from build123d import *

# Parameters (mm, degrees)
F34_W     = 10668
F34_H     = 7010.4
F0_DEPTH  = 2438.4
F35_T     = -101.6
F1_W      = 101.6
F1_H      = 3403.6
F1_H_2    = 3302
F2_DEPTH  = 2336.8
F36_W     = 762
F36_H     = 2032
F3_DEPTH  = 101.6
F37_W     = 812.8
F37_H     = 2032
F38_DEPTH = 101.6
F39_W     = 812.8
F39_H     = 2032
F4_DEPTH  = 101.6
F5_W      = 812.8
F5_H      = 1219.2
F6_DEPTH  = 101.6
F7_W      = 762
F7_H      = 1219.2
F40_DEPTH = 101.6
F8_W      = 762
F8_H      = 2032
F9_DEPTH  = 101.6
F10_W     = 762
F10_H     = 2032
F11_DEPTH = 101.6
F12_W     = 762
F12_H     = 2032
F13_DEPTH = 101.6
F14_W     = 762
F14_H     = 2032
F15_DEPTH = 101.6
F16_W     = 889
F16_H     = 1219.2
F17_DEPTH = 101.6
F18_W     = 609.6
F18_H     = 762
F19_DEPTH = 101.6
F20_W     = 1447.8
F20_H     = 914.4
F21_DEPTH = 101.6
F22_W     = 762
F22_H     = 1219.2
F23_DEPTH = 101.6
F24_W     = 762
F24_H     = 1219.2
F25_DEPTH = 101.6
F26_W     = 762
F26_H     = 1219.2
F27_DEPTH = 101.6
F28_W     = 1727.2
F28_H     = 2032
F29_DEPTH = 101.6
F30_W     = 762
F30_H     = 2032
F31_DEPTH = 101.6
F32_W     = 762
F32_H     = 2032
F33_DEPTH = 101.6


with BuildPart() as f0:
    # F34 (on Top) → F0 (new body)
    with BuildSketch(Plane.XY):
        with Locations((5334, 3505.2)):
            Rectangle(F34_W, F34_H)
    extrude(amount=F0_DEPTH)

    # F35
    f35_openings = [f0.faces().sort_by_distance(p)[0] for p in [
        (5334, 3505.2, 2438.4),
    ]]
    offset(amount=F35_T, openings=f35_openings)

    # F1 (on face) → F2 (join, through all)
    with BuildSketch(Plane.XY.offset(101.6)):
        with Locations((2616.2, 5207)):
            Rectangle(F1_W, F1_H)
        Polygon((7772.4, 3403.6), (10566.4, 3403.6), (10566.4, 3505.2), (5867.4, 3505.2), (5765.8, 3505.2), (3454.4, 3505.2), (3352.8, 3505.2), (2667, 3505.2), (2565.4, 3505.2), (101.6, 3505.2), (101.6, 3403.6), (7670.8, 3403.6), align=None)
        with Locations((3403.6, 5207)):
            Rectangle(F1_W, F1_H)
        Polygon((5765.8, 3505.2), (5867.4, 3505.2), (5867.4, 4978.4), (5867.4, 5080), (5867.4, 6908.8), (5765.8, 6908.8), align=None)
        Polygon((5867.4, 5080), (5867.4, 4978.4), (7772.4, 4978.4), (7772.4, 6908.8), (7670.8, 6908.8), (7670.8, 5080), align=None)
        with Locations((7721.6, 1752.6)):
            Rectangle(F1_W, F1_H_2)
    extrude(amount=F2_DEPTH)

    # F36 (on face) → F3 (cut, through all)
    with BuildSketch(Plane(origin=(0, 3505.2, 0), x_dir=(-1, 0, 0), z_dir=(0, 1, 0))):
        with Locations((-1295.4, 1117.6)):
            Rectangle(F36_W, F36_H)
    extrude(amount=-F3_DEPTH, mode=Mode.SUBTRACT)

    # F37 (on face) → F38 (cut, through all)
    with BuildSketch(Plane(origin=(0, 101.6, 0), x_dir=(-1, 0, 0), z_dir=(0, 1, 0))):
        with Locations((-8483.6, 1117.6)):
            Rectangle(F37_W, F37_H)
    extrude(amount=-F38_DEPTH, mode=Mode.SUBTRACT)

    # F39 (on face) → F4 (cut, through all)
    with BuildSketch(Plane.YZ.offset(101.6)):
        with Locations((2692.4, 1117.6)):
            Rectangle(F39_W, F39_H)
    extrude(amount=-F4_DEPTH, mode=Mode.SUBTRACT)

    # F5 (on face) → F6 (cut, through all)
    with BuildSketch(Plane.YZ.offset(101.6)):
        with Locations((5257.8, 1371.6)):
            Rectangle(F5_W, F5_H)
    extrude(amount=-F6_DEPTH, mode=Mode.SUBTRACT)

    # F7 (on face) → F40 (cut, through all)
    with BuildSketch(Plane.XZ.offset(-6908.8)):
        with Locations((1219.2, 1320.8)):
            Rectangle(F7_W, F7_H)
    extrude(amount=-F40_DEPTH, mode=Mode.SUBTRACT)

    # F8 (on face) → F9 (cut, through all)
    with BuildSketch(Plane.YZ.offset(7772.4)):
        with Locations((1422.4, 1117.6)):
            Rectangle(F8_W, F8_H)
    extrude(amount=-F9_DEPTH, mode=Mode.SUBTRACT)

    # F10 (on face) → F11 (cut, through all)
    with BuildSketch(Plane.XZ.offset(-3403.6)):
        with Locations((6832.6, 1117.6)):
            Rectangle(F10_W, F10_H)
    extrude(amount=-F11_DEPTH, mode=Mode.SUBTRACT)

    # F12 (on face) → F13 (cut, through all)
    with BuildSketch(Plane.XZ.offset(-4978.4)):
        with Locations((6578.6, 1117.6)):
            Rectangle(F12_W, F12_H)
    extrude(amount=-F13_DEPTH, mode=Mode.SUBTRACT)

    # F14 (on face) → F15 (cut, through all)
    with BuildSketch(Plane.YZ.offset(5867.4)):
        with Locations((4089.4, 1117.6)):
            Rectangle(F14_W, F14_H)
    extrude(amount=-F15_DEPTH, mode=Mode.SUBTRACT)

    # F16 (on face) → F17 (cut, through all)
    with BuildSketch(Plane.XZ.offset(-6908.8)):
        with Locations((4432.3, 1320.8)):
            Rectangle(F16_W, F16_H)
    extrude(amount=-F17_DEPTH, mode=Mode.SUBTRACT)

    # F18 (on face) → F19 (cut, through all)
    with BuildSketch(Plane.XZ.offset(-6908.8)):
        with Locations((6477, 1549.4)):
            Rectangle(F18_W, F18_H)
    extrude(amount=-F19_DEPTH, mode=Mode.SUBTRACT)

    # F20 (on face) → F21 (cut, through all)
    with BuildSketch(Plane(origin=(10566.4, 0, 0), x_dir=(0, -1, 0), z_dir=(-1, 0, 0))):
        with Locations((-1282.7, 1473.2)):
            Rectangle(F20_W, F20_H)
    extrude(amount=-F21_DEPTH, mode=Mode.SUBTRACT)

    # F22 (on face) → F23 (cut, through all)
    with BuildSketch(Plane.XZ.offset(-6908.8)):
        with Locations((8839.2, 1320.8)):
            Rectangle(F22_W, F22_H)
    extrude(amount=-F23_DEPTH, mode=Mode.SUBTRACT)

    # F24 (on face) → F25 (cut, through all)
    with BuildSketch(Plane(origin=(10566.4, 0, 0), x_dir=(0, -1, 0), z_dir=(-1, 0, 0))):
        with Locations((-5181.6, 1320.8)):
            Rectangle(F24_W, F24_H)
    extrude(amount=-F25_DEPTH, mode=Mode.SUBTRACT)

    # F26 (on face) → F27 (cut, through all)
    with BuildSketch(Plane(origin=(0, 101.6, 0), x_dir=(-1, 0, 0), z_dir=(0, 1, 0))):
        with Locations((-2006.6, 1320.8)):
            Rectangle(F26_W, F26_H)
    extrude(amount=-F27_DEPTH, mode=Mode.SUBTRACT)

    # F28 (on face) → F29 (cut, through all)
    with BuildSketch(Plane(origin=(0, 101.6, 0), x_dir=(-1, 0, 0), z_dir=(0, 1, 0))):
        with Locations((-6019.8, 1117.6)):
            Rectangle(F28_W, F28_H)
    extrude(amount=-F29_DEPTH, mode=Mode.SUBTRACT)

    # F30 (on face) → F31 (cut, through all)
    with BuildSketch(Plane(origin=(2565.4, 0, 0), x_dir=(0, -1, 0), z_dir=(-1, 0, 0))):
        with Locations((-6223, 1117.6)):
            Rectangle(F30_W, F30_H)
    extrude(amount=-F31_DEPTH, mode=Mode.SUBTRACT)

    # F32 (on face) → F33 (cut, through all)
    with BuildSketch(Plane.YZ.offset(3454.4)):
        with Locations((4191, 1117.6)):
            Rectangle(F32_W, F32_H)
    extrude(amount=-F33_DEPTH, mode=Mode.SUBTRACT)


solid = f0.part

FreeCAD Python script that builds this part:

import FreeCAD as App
import Part
import Sketcher

V = App.Vector
Q = App.Units.Quantity


def faces_at(feature, points):
    """Names of the faces that lie closest to the given points."""
    faces = feature.Shape.Faces
    near = lambda p: min(range(len(faces)), key=lambda i: faces[i].distToShape(Part.Vertex(*p))[0])
    return sorted({f"Face{near(p) + 1}" for p in points})

doc = App.newDocument("Part")
body = doc.addObject("PartDesign::Body", "Body")

# Sketch on XY plane
sketch1 = body.newObject("Sketcher::SketchObject", "Sketch")
sketch1.AttachmentSupport = (doc.getObject("XY_Plane"), [""])
sketch1.MapMode = "FlatFace"
sketch1.addGeometry([
    Part.LineSegment(V(0, 7010, 0), V(0, 0, 0)),
    Part.LineSegment(V(0, 0, 0), V(10668, 0, 0)),
    Part.LineSegment(V(10668, 0, 0), V(10668, 7010, 0)),
    Part.LineSegment(V(10668, 7010, 0), V(0, 7010, 0)),
], False)
sketch1.addConstraint([
    Sketcher.Constraint("Coincident", 0, 2, 1, 1),
    Sketcher.Constraint("Coincident", 1, 2, 2, 1),
    Sketcher.Constraint("Coincident", 2, 2, 3, 1),
    Sketcher.Constraint("Coincident", 3, 2, 0, 1),
    Sketcher.Constraint("Vertical", 0),
    Sketcher.Constraint("Horizontal", 1),
    Sketcher.Constraint("Vertical", 2),
    Sketcher.Constraint("Horizontal", 3),
    Sketcher.Constraint("Coincident", 0, 2, -1, 1),
    Sketcher.Constraint("DistanceX", 1, 1, 1, 2, Q("420 in")),
    Sketcher.Constraint("DistanceY", 0, 2, 0, 1, Q("276 in")),
])
pad1 = body.newObject("PartDesign::Pad", "Pad")
pad1.Profile = sketch1
pad1.Length = Q("96 in")
doc.recompute()

thickness = body.newObject("PartDesign::Thickness", "Thickness")
thickness.Base = (pad1, faces_at(pad1, [(5334, 3505.2, 2438.4)]))
thickness.Value = Q("4 in")
thickness.Reversed = True
thickness.Join = "Arc"

# Sketch on XY plane
sketch2 = body.newObject("Sketcher::SketchObject", "Sketch001")
sketch2.AttachmentSupport = (doc.getObject("XY_Plane"), [""])
sketch2.MapMode = "FlatFace"
sketch2.AttachmentOffset = App.Placement(V(0, 0, 4 * 25.4), App.Rotation())
sketch2.addGeometry([
    Part.LineSegment(V(2565, 6909, 0), V(2565, 3505, 0)),  # 0
    Part.LineSegment(V(2565, 3505, 0), V(102, 3505, 0)),  # 1
    Part.LineSegment(V(102, 3505, 0), V(102, 3404, 0)),  # 2
    Part.LineSegment(V(102, 3404, 0), V(7671, 3404, 0)),  # 3
    Part.LineSegment(V(7671, 3404, 0), V(7671, 102, 0)),  # 4
    Part.LineSegment(V(7671, 102, 0), V(7772, 102, 0)),  # 5
    Part.LineSegment(V(7772, 102, 0), V(7772, 3404, 0)),  # 6
    Part.LineSegment(V(7772, 3404, 0), V(10566, 3404, 0)),  # 7
    Part.LineSegment(V(10566, 3404, 0), V(10566, 3505, 0)),  # 8
    Part.LineSegment(V(10566, 3505, 0), V(5867, 3505, 0)),  # 9
    Part.LineSegment(V(5867, 3505, 0), V(5867, 4978, 0)),  # 10
    Part.LineSegment(V(5867, 4978, 0), V(7772, 4978, 0)),  # 11
    Part.LineSegment(V(7772, 4978, 0), V(7772, 6909, 0)),  # 12
    Part.LineSegment(V(7772, 6909, 0), V(7671, 6909, 0)),  # 13
    Part.LineSegment(V(7671, 6909, 0), V(7671, 5080, 0)),  # 14
    Part.LineSegment(V(7671, 5080, 0), V(5867, 5080, 0)),  # 15
    Part.LineSegment(V(5867, 5080, 0), V(5867, 6909, 0)),  # 16
    Part.LineSegment(V(5867, 6909, 0), V(5766, 6909, 0)),  # 17
    Part.LineSegment(V(5766, 6909, 0), V(5766, 3505, 0)),  # 18
    Part.LineSegment(V(5766, 3505, 0), V(3454, 3505, 0)),  # 19
    Part.LineSegment(V(3454, 3505, 0), V(3454, 6909, 0)),  # 20
    Part.LineSegment(V(3454, 6909, 0), V(3353, 6909, 0)),  # 21
    Part.LineSegment(V(3353, 6909, 0), V(3353, 3505, 0)),  # 22
    Part.LineSegment(V(3353, 3505, 0), V(2667, 3505, 0)),  # 23
    Part.LineSegment(V(2667, 3505, 0), V(2667, 6909, 0)),  # 24
    Part.LineSegment(V(2667, 6909, 0), V(2565, 6909, 0)),  # 25
], False)
sketch2.addConstraint([
    Sketcher.Constraint("Coincident", 0, 2, 1, 1),
    Sketcher.Constraint("Coincident", 1, 2, 2, 1),
    Sketcher.Constraint("Coincident", 2, 2, 3, 1),
    Sketcher.Constraint("Coincident", 3, 2, 4, 1),
    Sketcher.Constraint("Coincident", 4, 2, 5, 1),
    Sketcher.Constraint("Coincident", 5, 2, 6, 1),
    Sketcher.Constraint("Coincident", 6, 2, 7, 1),
    Sketcher.Constraint("Coincident", 7, 2, 8, 1),
    Sketcher.Constraint("Coincident", 8, 2, 9, 1),
    Sketcher.Constraint("Coincident", 9, 2, 10, 1),
    Sketcher.Constraint("Coincident", 10, 2, 11, 1),
    Sketcher.Constraint("Coincident", 11, 2, 12, 1),
    Sketcher.Constraint("Coincident", 12, 2, 13, 1),
    Sketcher.Constraint("Coincident", 13, 2, 14, 1),
    Sketcher.Constraint("Coincident", 14, 2, 15, 1),
    Sketcher.Constraint("Coincident", 15, 2, 16, 1),
    Sketcher.Constraint("Coincident", 16, 2, 17, 1),
    Sketcher.Constraint("Coincident", 17, 2, 18, 1),
    Sketcher.Constraint("Coincident", 18, 2, 19, 1),
    Sketcher.Constraint("Coincident", 19, 2, 20, 1),
    Sketcher.Constraint("Coincident", 20, 2, 21, 1),
    Sketcher.Constraint("Coincident", 21, 2, 22, 1),
    Sketcher.Constraint("Coincident", 22, 2, 23, 1),
    Sketcher.Constraint("Coincident", 23, 2, 24, 1),
    Sketcher.Constraint("Coincident", 24, 2, 25, 1),
    Sketcher.Constraint("Coincident", 25, 2, 0, 1),
    Sketcher.Constraint("Vertical", 0),
    Sketcher.Constraint("Horizontal", 1),
    Sketcher.Constraint("Vertical", 2),
    Sketcher.Constraint("Horizontal", 3),
    Sketcher.Constraint("Vertical", 4),
    Sketcher.Constraint("Horizontal", 5),
    Sketcher.Constraint("Vertical", 6),
    Sketcher.Constraint("Horizontal", 7),
    Sketcher.Constraint("Vertical", 8),
    Sketcher.Constraint("Horizontal", 9),
    Sketcher.Constraint("Vertical", 10),
    Sketcher.Constraint("Horizontal", 11),
    Sketcher.Constraint("Vertical", 12),
    Sketcher.Constraint("Horizontal", 13),
    Sketcher.Constraint("Vertical", 14),
    Sketcher.Constraint("Horizontal", 15),
    Sketcher.Constraint("Vertical", 16),
    Sketcher.Constraint("Horizontal", 17),
    Sketcher.Constraint("Vertical", 18),
    Sketcher.Constraint("Horizontal", 19),
    Sketcher.Constraint("Vertical", 20),
    Sketcher.Constraint("Horizontal", 21),
    Sketcher.Constraint("Vertical", 22),
    Sketcher.Constraint("Horizontal", 23),
    Sketcher.Constraint("Vertical", 24),
    Sketcher.Constraint("Horizontal", 25),
    Sketcher.Constraint("Horizontal", 3, 2, 6, 2),
    Sketcher.Constraint("Horizontal", 1, 2, 8, 2),
    Sketcher.Constraint("Horizontal", 13, 2, 16, 2),
    Sketcher.Constraint("Horizontal", 9, 2, 18, 2),
    Sketcher.Constraint("Horizontal", 17, 2, 20, 2),
    Sketcher.Constraint("Horizontal", 19, 2, 22, 2),
    Sketcher.Constraint("Horizontal", 21, 2, 24, 2),
    Sketcher.Constraint("Vertical", 6, 2, 11, 2),
    Sketcher.Constraint("Vertical", 4, 2, 13, 2),
    Sketcher.Constraint("Vertical", 10, 2, 15, 2),
    Sketcher.Constraint("Equal", 13, 17),
    Sketcher.Constraint("Equal", 17, 21),
    Sketcher.Constraint("Equal", 21, 25),
    Sketcher.Constraint("Equal", 25, 2),
    Sketcher.Constraint("DistanceX", 1, 2, 1, 1, Q("97 in")),
    Sketcher.Constraint("DistanceX", 3, 1, 3, 2, Q("298 in")),
    Sketcher.Constraint("DistanceX", 5, 1, 5, 2, Q("4 in")),
    Sketcher.Constraint("DistanceX", 7, 1, 7, 2, Q("110 in")),
    Sketcher.Constraint("DistanceX", 9, 2, 9, 1, Q("185 in")),
    Sketcher.Constraint("DistanceX", 19, 2, 19, 1, Q("91 in")),
    Sketcher.Constraint("DistanceY", 0, 2, 0, 1, Q("134 in")),
    Sketcher.Constraint("DistanceY", 4, 2, 4, 1, Q("130 in")),
    Sketcher.Constraint("DistanceY", 10, 1, 10, 2, Q("58 in")),
    Sketcher.Constraint("DistanceY", 14, 2, 14, 1, Q("72 in")),
    Sketcher.Constraint("DistanceX", -1, 1, 0, 2, Q("101 in")),
    Sketcher.Constraint("DistanceY", -1, 1, 0, 2, Q("138 in")),
])
pad2 = body.newObject("PartDesign::Pad", "Pad001")
pad2.Profile = sketch2
pad2.Length = Q("92 in")

# Sketch on XZ plane
sketch3 = body.newObject("Sketcher::SketchObject", "Sketch002")
sketch3.AttachmentSupport = (doc.getObject("XZ_Plane"), [""])
sketch3.MapMode = "FlatFace"
sketch3.AttachmentOffset = App.Placement(V(0, 0, -138 * 25.4), App.Rotation())
sketch3.addGeometry([
    Part.LineSegment(V(1676, 2134, 0), V(1676, 102, 0)),
    Part.LineSegment(V(1676, 102, 0), V(914, 102, 0)),
    Part.LineSegment(V(914, 102, 0), V(914, 2134, 0)),
    Part.LineSegment(V(914, 2134, 0), V(1676, 2134, 0)),
], False)
sketch3.addConstraint([
    Sketcher.Constraint("Coincident", 0, 2, 1, 1),
    Sketcher.Constraint("Coincident", 1, 2, 2, 1),
    Sketcher.Constraint("Coincident", 2, 2, 3, 1),
    Sketcher.Constraint("Coincident", 3, 2, 0, 1),
    Sketcher.Constraint("Vertical", 0),
    Sketcher.Constraint("Horizontal", 1),
    Sketcher.Constraint("Vertical", 2),
    Sketcher.Constraint("Horizontal", 3),
    Sketcher.Constraint("DistanceX", 1, 2, 1, 1, Q("30 in")),
    Sketcher.Constraint("DistanceY", 0, 2, 0, 1, Q("80 in")),
    Sketcher.Constraint("DistanceX", -1, 1, 0, 2, Q("66 in")),
    Sketcher.Constraint("DistanceY", -1, 1, 0, 2, Q("4 in")),
])
pocket1 = body.newObject("PartDesign::Pocket", "Pocket")
pocket1.Profile = sketch3
pocket1.Length = Q("4 in")
pocket1.Reversed = True

# Sketch on XZ plane
sketch4 = body.newObject("Sketcher::SketchObject", "Sketch003")
sketch4.AttachmentSupport = (doc.getObject("XZ_Plane"), [""])
sketch4.MapMode = "FlatFace"
sketch4.AttachmentOffset = App.Placement(V(0, 0, -4 * 25.4), App.Rotation())
sketch4.addGeometry([
    Part.LineSegment(V(8890, 2134, 0), V(8890, 102, 0)),
    Part.LineSegment(V(8890, 102, 0), V(8077, 102, 0)),
    Part.LineSegment(V(8077, 102, 0), V(8077, 2134, 0)),
    Part.LineSegment(V(8077, 2134, 0), V(8890, 2134, 0)),
], False)
sketch4.addConstraint([
    Sketcher.Constraint("Coincident", 0, 2, 1, 1),
    Sketcher.Constraint("Coincident", 1, 2, 2, 1),
    Sketcher.Constraint("Coincident", 2, 2, 3, 1),
    Sketcher.Constraint("Coincident", 3, 2, 0, 1),
    Sketcher.Constraint("Vertical", 0),
    Sketcher.Constraint("Horizontal", 1),
    Sketcher.Constraint("Vertical", 2),
    Sketcher.Constraint("Horizontal", 3),
    Sketcher.Constraint("DistanceX", 1, 2, 1, 1, Q("32 in")),
    Sketcher.Constraint("DistanceY", 0, 2, 0, 1, Q("80 in")),
    Sketcher.Constraint("DistanceX", -1, 1, 0, 2, Q("350 in")),
    Sketcher.Constraint("DistanceY", -1, 1, 0, 2, Q("4 in")),
])
pocket2 = body.newObject("PartDesign::Pocket", "Pocket001")
pocket2.Profile = sketch4
pocket2.Type = "ThroughAll"
pocket2.Reversed = True

# Sketch on YZ plane
sketch5 = body.newObject("Sketcher::SketchObject", "Sketch004")
sketch5.AttachmentSupport = (doc.getObject("YZ_Plane"), [""])
sketch5.MapMode = "FlatFace"
sketch5.AttachmentOffset = App.Placement(V(0, 0, 4 * 25.4), App.Rotation())
sketch5.addGeometry([
    Part.LineSegment(V(2286, 2134, 0), V(2286, 102, 0)),
    Part.LineSegment(V(2286, 102, 0), V(3099, 102, 0)),
    Part.LineSegment(V(3099, 102, 0), V(3099, 2134, 0)),
    Part.LineSegment(V(3099, 2134, 0), V(2286, 2134, 0)),
], False)
sketch5.addConstraint([
    Sketcher.Constraint("Coincident", 0, 2, 1, 1),
    Sketcher.Constraint("Coincident", 1, 2, 2, 1),
    Sketcher.Constraint("Coincident", 2, 2, 3, 1),
    Sketcher.Constraint("Coincident", 3, 2, 0, 1),
    Sketcher.Constraint("Vertical", 0),
    Sketcher.Constraint("Horizontal", 1),
    Sketcher.Constraint("Vertical", 2),
    Sketcher.Constraint("Horizontal", 3),
    Sketcher.Constraint("DistanceX", 1, 1, 1, 2, Q("32 in")),
    Sketcher.Constraint("DistanceY", 0, 2, 0, 1, Q("80 in")),
    Sketcher.Constraint("DistanceX", -1, 1, 0, 2, Q("90 in")),
    Sketcher.Constraint("DistanceY", -1, 1, 0, 2, Q("4 in")),
])
pocket3 = body.newObject("PartDesign::Pocket", "Pocket002")
pocket3.Profile = sketch5
pocket3.Type = "ThroughAll"

# Sketch on YZ plane
sketch6 = body.newObject("Sketcher::SketchObject", "Sketch005")
sketch6.AttachmentSupport = (doc.getObject("YZ_Plane"), [""])
sketch6.MapMode = "FlatFace"
sketch6.AttachmentOffset = App.Placement(V(0, 0, 4 * 25.4), App.Rotation())
sketch6.addGeometry([
    Part.LineSegment(V(4851, 1981, 0), V(4851, 762, 0)),
    Part.LineSegment(V(4851, 762, 0), V(5664, 762, 0)),
    Part.LineSegment(V(5664, 762, 0), V(5664, 1981, 0)),
    Part.LineSegment(V(5664, 1981, 0), V(4851, 1981, 0)),
], False)
sketch6.addConstraint([
    Sketcher.Constraint("Coincident", 0, 2, 1, 1),
    Sketcher.Constraint("Coincident", 1, 2, 2, 1),
    Sketcher.Constraint("Coincident", 2, 2, 3, 1),
    Sketcher.Constraint("Coincident", 3, 2, 0, 1),
    Sketcher.Constraint("Vertical", 0),
    Sketcher.Constraint("Horizontal", 1),
    Sketcher.Constraint("Vertical", 2),
    Sketcher.Constraint("Horizontal", 3),
    Sketcher.Constraint("DistanceX", 1, 1, 1, 2, Q("32 in")),
    Sketcher.Constraint("DistanceY", 0, 2, 0, 1, Q("48 in")),
    Sketcher.Constraint("DistanceX", -1, 1, 0, 2, Q("191 in")),
    Sketcher.Constraint("DistanceY", -1, 1, 0, 2, Q("30 in")),
])
pocket4 = body.newObject("PartDesign::Pocket", "Pocket003")
pocket4.Profile = sketch6
pocket4.Type = "ThroughAll"

# Sketch on XZ plane
sketch7 = body.newObject("Sketcher::SketchObject", "Sketch006")
sketch7.AttachmentSupport = (doc.getObject("XZ_Plane"), [""])
sketch7.MapMode = "FlatFace"
sketch7.AttachmentOffset = App.Placement(V(0, 0, -272 * 25.4), App.Rotation())
sketch7.addGeometry([
    Part.LineSegment(V(838, 1930, 0), V(838, 711, 0)),
    Part.LineSegment(V(838, 711, 0), V(1600, 711, 0)),
    Part.LineSegment(V(1600, 711, 0), V(1600, 1930, 0)),
    Part.LineSegment(V(1600, 1930, 0), V(838, 1930, 0)),
], False)
sketch7.addConstraint([
    Sketcher.Constraint("Coincident", 0, 2, 1, 1),
    Sketcher.Constraint("Coincident", 1, 2, 2, 1),
    Sketcher.Constraint("Coincident", 2, 2, 3, 1),
    Sketcher.Constraint("Coincident", 3, 2, 0, 1),
    Sketcher.Constraint("Vertical", 0),
    Sketcher.Constraint("Horizontal", 1),
    Sketcher.Constraint("Vertical", 2),
    Sketcher.Constraint("Horizontal", 3),
    Sketcher.Constraint("DistanceX", 1, 1, 1, 2, Q("30 in")),
    Sketcher.Constraint("DistanceY", 0, 2, 0, 1, Q("48 in")),
    Sketcher.Constraint("DistanceX", -1, 1, 0, 2, Q("33 in")),
    Sketcher.Constraint("DistanceY", -1, 1, 0, 2, Q("28 in")),
])
pocket5 = body.newObject("PartDesign::Pocket", "Pocket004")
pocket5.Profile = sketch7
pocket5.Type = "ThroughAll"

# Sketch on YZ plane
sketch8 = body.newObject("Sketcher::SketchObject", "Sketch007")
sketch8.AttachmentSupport = (doc.getObject("YZ_Plane"), [""])
sketch8.MapMode = "FlatFace"
sketch8.AttachmentOffset = App.Placement(V(0, 0, 306 * 25.4), App.Rotation())
sketch8.addGeometry([
    Part.LineSegment(V(1041, 2134, 0), V(1041, 102, 0)),
    Part.LineSegment(V(1041, 102, 0), V(1803, 102, 0)),
    Part.LineSegment(V(1803, 102, 0), V(1803, 2134, 0)),
    Part.LineSegment(V(1803, 2134, 0), V(1041, 2134, 0)),
], False)
sketch8.addConstraint([
    Sketcher.Constraint("Coincident", 0, 2, 1, 1),
    Sketcher.Constraint("Coincident", 1, 2, 2, 1),
    Sketcher.Constraint("Coincident", 2, 2, 3, 1),
    Sketcher.Constraint("Coincident", 3, 2, 0, 1),
    Sketcher.Constraint("Vertical", 0),
    Sketcher.Constraint("Horizontal", 1),
    Sketcher.Constraint("Vertical", 2),
    Sketcher.Constraint("Horizontal", 3),
    Sketcher.Constraint("DistanceX", 1, 1, 1, 2, Q("30 in")),
    Sketcher.Constraint("DistanceY", 0, 2, 0, 1, Q("80 in")),
    Sketcher.Constraint("DistanceX", -1, 1, 0, 2, Q("41 in")),
    Sketcher.Constraint("DistanceY", -1, 1, 0, 2, Q("4 in")),
])
pocket6 = body.newObject("PartDesign::Pocket", "Pocket005")
pocket6.Profile = sketch8
pocket6.Length = Q("4 in")

# Sketch on XZ plane
sketch9 = body.newObject("Sketcher::SketchObject", "Sketch008")
sketch9.AttachmentSupport = (doc.getObject("XZ_Plane"), [""])
sketch9.MapMode = "FlatFace"
sketch9.AttachmentOffset = App.Placement(V(0, 0, -134 * 25.4), App.Rotation())
sketch9.addGeometry([
    Part.LineSegment(V(6452, 2134, 0), V(6452, 102, 0)),
    Part.LineSegment(V(6452, 102, 0), V(7214, 102, 0)),
    Part.LineSegment(V(7214, 102, 0), V(7214, 2134, 0)),
    Part.LineSegment(V(7214, 2134, 0), V(6452, 2134, 0)),
], False)
sketch9.addConstraint([
    Sketcher.Constraint("Coincident", 0, 2, 1, 1),
    Sketcher.Constraint("Coincident", 1, 2, 2, 1),
    Sketcher.Constraint("Coincident", 2, 2, 3, 1),
    Sketcher.Constraint("Coincident", 3, 2, 0, 1),
    Sketcher.Constraint("Vertical", 0),
    Sketcher.Constraint("Horizontal", 1),
    Sketcher.Constraint("Vertical", 2),
    Sketcher.Constraint("Horizontal", 3),
    Sketcher.Constraint("DistanceX", 1, 1, 1, 2, Q("30 in")),
    Sketcher.Constraint("DistanceY", 0, 2, 0, 1, Q("80 in")),
    Sketcher.Constraint("DistanceX", -1, 1, 0, 2, Q("254 in")),
    Sketcher.Constraint("DistanceY", -1, 1, 0, 2, Q("4 in")),
])
pocket7 = body.newObject("PartDesign::Pocket", "Pocket006")
pocket7.Profile = sketch9
pocket7.Length = Q("4 in")

# Sketch on XZ plane
sketch10 = body.newObject("Sketcher::SketchObject", "Sketch009")
sketch10.AttachmentSupport = (doc.getObject("XZ_Plane"), [""])
sketch10.MapMode = "FlatFace"
sketch10.AttachmentOffset = App.Placement(V(0, 0, -196 * 25.4), App.Rotation())
sketch10.addGeometry([
    Part.LineSegment(V(6198, 2134, 0), V(6198, 102, 0)),
    Part.LineSegment(V(6198, 102, 0), V(6960, 102, 0)),
    Part.LineSegment(V(6960, 102, 0), V(6960, 2134, 0)),
    Part.LineSegment(V(6960, 2134, 0), V(6198, 2134, 0)),
], False)
sketch10.addConstraint([
    Sketcher.Constraint("Coincident", 0, 2, 1, 1),
    Sketcher.Constraint("Coincident", 1, 2, 2, 1),
    Sketcher.Constraint("Coincident", 2, 2, 3, 1),
    Sketcher.Constraint("Coincident", 3, 2, 0, 1),
    Sketcher.Constraint("Vertical", 0),
    Sketcher.Constraint("Horizontal", 1),
    Sketcher.Constraint("Vertical", 2),
    Sketcher.Constraint("Horizontal", 3),
    Sketcher.Constraint("DistanceX", 1, 1, 1, 2, Q("30 in")),
    Sketcher.Constraint("DistanceY", 0, 2, 0, 1, Q("80 in")),
    Sketcher.Constraint("DistanceX", -1, 1, 0, 2, Q("244 in")),
    Sketcher.Constraint("DistanceY", -1, 1, 0, 2, Q("4 in")),
])
pocket8 = body.newObject("PartDesign::Pocket", "Pocket007")
pocket8.Profile = sketch10
pocket8.Length = Q("4 in")

# Sketch on YZ plane
sketch11 = body.newObject("Sketcher::SketchObject", "Sketch010")
sketch11.AttachmentSupport = (doc.getObject("YZ_Plane"), [""])
sketch11.MapMode = "FlatFace"
sketch11.AttachmentOffset = App.Placement(V(0, 0, 231 * 25.4), App.Rotation())
sketch11.addGeometry([
    Part.LineSegment(V(3708, 2134, 0), V(3708, 102, 0)),
    Part.LineSegment(V(3708, 102, 0), V(4470, 102, 0)),
    Part.LineSegment(V(4470, 102, 0), V(4470, 2134, 0)),
    Part.LineSegment(V(4470, 2134, 0), V(3708, 2134, 0)),
], False)
sketch11.addConstraint([
    Sketcher.Constraint("Coincident", 0, 2, 1, 1),
    Sketcher.Constraint("Coincident", 1, 2, 2, 1),
    Sketcher.Constraint("Coincident", 2, 2, 3, 1),
    Sketcher.Constraint("Coincident", 3, 2, 0, 1),
    Sketcher.Constraint("Vertical", 0),
    Sketcher.Constraint("Horizontal", 1),
    Sketcher.Constraint("Vertical", 2),
    Sketcher.Constraint("Horizontal", 3),
    Sketcher.Constraint("DistanceX", 1, 1, 1, 2, Q("30 in")),
    Sketcher.Constraint("DistanceY", 0, 2, 0, 1, Q("80 in")),
    Sketcher.Constraint("DistanceX", -1, 1, 0, 2, Q("146 in")),
    Sketcher.Constraint("DistanceY", -1, 1, 0, 2, Q("4 in")),
])
pocket9 = body.newObject("PartDesign::Pocket", "Pocket008")
pocket9.Profile = sketch11
pocket9.Length = Q("4 in")

# Sketch on XZ plane
sketch12 = body.newObject("Sketcher::SketchObject", "Sketch011")
sketch12.AttachmentSupport = (doc.getObject("XZ_Plane"), [""])
sketch12.MapMode = "FlatFace"
sketch12.AttachmentOffset = App.Placement(V(0, 0, -272 * 25.4), App.Rotation())
sketch12.addGeometry([
    Part.LineSegment(V(3988, 1930, 0), V(3988, 711, 0)),
    Part.LineSegment(V(3988, 711, 0), V(4877, 711, 0)),
    Part.LineSegment(V(4877, 711, 0), V(4877, 1930, 0)),
    Part.LineSegment(V(4877, 1930, 0), V(3988, 1930, 0)),
], False)
sketch12.addConstraint([
    Sketcher.Constraint("Coincident", 0, 2, 1, 1),
    Sketcher.Constraint("Coincident", 1, 2, 2, 1),
    Sketcher.Constraint("Coincident", 2, 2, 3, 1),
    Sketcher.Constraint("Coincident", 3, 2, 0, 1),
    Sketcher.Constraint("Vertical", 0),
    Sketcher.Constraint("Horizontal", 1),
    Sketcher.Constraint("Vertical", 2),
    Sketcher.Constraint("Horizontal", 3),
    Sketcher.Constraint("DistanceX", 1, 1, 1, 2, Q("35 in")),
    Sketcher.Constraint("DistanceY", 0, 2, 0, 1, Q("48 in")),
    Sketcher.Constraint("DistanceX", -1, 1, 0, 2, Q("157 in")),
    Sketcher.Constraint("DistanceY", -1, 1, 0, 2, Q("28 in")),
])
pocket10 = body.newObject("PartDesign::Pocket", "Pocket009")
pocket10.Profile = sketch12
pocket10.Type = "ThroughAll"

# Sketch on XZ plane
sketch13 = body.newObject("Sketcher::SketchObject", "Sketch012")
sketch13.AttachmentSupport = (doc.getObject("XZ_Plane"), [""])
sketch13.MapMode = "FlatFace"
sketch13.AttachmentOffset = App.Placement(V(0, 0, -272 * 25.4), App.Rotation())
sketch13.addGeometry([
    Part.LineSegment(V(6172, 1930, 0), V(6172, 1168, 0)),
    Part.LineSegment(V(6172, 1168, 0), V(6782, 1168, 0)),
    Part.LineSegment(V(6782, 1168, 0), V(6782, 1930, 0)),
    Part.LineSegment(V(6782, 1930, 0), V(6172, 1930, 0)),
], False)
sketch13.addConstraint([
    Sketcher.Constraint("Coincident", 0, 2, 1, 1),
    Sketcher.Constraint("Coincident", 1, 2, 2, 1),
    Sketcher.Constraint("Coincident", 2, 2, 3, 1),
    Sketcher.Constraint("Coincident", 3, 2, 0, 1),
    Sketcher.Constraint("Vertical", 0),
    Sketcher.Constraint("Horizontal", 1),
    Sketcher.Constraint("Vertical", 2),
    Sketcher.Constraint("Horizontal", 3),
    Sketcher.Constraint("DistanceX", 1, 1, 1, 2, Q("24 in")),
    Sketcher.Constraint("DistanceY", 0, 2, 0, 1, Q("30 in")),
    Sketcher.Constraint("DistanceX", -1, 1, 0, 2, Q("243 in")),
    Sketcher.Constraint("DistanceY", -1, 1, 0, 2, Q("46 in")),
])
pocket11 = body.newObject("PartDesign::Pocket", "Pocket010")
pocket11.Profile = sketch13
pocket11.Type = "ThroughAll"

# Sketch on YZ plane
sketch14 = body.newObject("Sketcher::SketchObject", "Sketch013")
sketch14.AttachmentSupport = (doc.getObject("YZ_Plane"), [""])
sketch14.MapMode = "FlatFace"
sketch14.AttachmentOffset = App.Placement(V(0, 0, 416 * 25.4), App.Rotation())
sketch14.addGeometry([
    Part.LineSegment(V(2007, 1930, 0), V(2007, 1016, 0)),
    Part.LineSegment(V(2007, 1016, 0), V(559, 1016, 0)),
    Part.LineSegment(V(559, 1016, 0), V(559, 1930, 0)),
    Part.LineSegment(V(559, 1930, 0), V(2007, 1930, 0)),
], False)
sketch14.addConstraint([
    Sketcher.Constraint("Coincident", 0, 2, 1, 1),
    Sketcher.Constraint("Coincident", 1, 2, 2, 1),
    Sketcher.Constraint("Coincident", 2, 2, 3, 1),
    Sketcher.Constraint("Coincident", 3, 2, 0, 1),
    Sketcher.Constraint("Vertical", 0),
    Sketcher.Constraint("Horizontal", 1),
    Sketcher.Constraint("Vertical", 2),
    Sketcher.Constraint("Horizontal", 3),
    Sketcher.Constraint("DistanceX", 1, 2, 1, 1, Q("57 in")),
    Sketcher.Constraint("DistanceY", 0, 2, 0, 1, Q("36 in")),
    Sketcher.Constraint("DistanceX", -1, 1, 0, 2, Q("79 in")),
    Sketcher.Constraint("DistanceY", -1, 1, 0, 2, Q("40 in")),
])
pocket12 = body.newObject("PartDesign::Pocket", "Pocket011")
pocket12.Profile = sketch14
pocket12.Type = "ThroughAll"
pocket12.Reversed = True

# Sketch on XZ plane
sketch15 = body.newObject("Sketcher::SketchObject", "Sketch014")
sketch15.AttachmentSupport = (doc.getObject("XZ_Plane"), [""])
sketch15.MapMode = "FlatFace"
sketch15.AttachmentOffset = App.Placement(V(0, 0, -272 * 25.4), App.Rotation())
sketch15.addGeometry([
    Part.LineSegment(V(8458, 1930, 0), V(8458, 711, 0)),
    Part.LineSegment(V(8458, 711, 0), V(9220, 711, 0)),
    Part.LineSegment(V(9220, 711, 0), V(9220, 1930, 0)),
    Part.LineSegment(V(9220, 1930, 0), V(8458, 1930, 0)),
], False)
sketch15.addConstraint([
    Sketcher.Constraint("Coincident", 0, 2, 1, 1),
    Sketcher.Constraint("Coincident", 1, 2, 2, 1),
    Sketcher.Constraint("Coincident", 2, 2, 3, 1),
    Sketcher.Constraint("Coincident", 3, 2, 0, 1),
    Sketcher.Constraint("Vertical", 0),
    Sketcher.Constraint("Horizontal", 1),
    Sketcher.Constraint("Vertical", 2),
    Sketcher.Constraint("Horizontal", 3),
    Sketcher.Constraint("DistanceX", 1, 1, 1, 2, Q("30 in")),
    Sketcher.Constraint("DistanceY", 0, 2, 0, 1, Q("48 in")),
    Sketcher.Constraint("DistanceX", -1, 1, 0, 2, Q("333 in")),
    Sketcher.Constraint("DistanceY", -1, 1, 0, 2, Q("28 in")),
])
pocket13 = body.newObject("PartDesign::Pocket", "Pocket012")
pocket13.Profile = sketch15
pocket13.Type = "ThroughAll"

# Sketch on YZ plane
sketch16 = body.newObject("Sketcher::SketchObject", "Sketch015")
sketch16.AttachmentSupport = (doc.getObject("YZ_Plane"), [""])
sketch16.MapMode = "FlatFace"
sketch16.AttachmentOffset = App.Placement(V(0, 0, 416 * 25.4), App.Rotation())
sketch16.addGeometry([
    Part.LineSegment(V(5563, 1930, 0), V(5563, 711, 0)),
    Part.LineSegment(V(5563, 711, 0), V(4801, 711, 0)),
    Part.LineSegment(V(4801, 711, 0), V(4801, 1930, 0)),
    Part.LineSegment(V(4801, 1930, 0), V(5563, 1930, 0)),
], False)
sketch16.addConstraint([
    Sketcher.Constraint("Coincident", 0, 2, 1, 1),
    Sketcher.Constraint("Coincident", 1, 2, 2, 1),
    Sketcher.Constraint("Coincident", 2, 2, 3, 1),
    Sketcher.Constraint("Coincident", 3, 2, 0, 1),
    Sketcher.Constraint("Vertical", 0),
    Sketcher.Constraint("Horizontal", 1),
    Sketcher.Constraint("Vertical", 2),
    Sketcher.Constraint("Horizontal", 3),
    Sketcher.Constraint("DistanceX", 1, 2, 1, 1, Q("30 in")),
    Sketcher.Constraint("DistanceY", 0, 2, 0, 1, Q("48 in")),
    Sketcher.Constraint("DistanceX", -1, 1, 0, 2, Q("219 in")),
    Sketcher.Constraint("DistanceY", -1, 1, 0, 2, Q("28 in")),
])
pocket14 = body.newObject("PartDesign::Pocket", "Pocket013")
pocket14.Profile = sketch16
pocket14.Type = "ThroughAll"
pocket14.Reversed = True

# Sketch on XZ plane
sketch17 = body.newObject("Sketcher::SketchObject", "Sketch016")
sketch17.AttachmentSupport = (doc.getObject("XZ_Plane"), [""])
sketch17.MapMode = "FlatFace"
sketch17.AttachmentOffset = App.Placement(V(0, 0, -4 * 25.4), App.Rotation())
sketch17.addGeometry([
    Part.LineSegment(V(2388, 1930, 0), V(2388, 711, 0)),
    Part.LineSegment(V(2388, 711, 0), V(1626, 711, 0)),
    Part.LineSegment(V(1626, 711, 0), V(1626, 1930, 0)),
    Part.LineSegment(V(1626, 1930, 0), V(2388, 1930, 0)),
], False)
sketch17.addConstraint([
    Sketcher.Constraint("Coincident", 0, 2, 1, 1),
    Sketcher.Constraint("Coincident", 1, 2, 2, 1),
    Sketcher.Constraint("Coincident", 2, 2, 3, 1),
    Sketcher.Constraint("Coincident", 3, 2, 0, 1),
    Sketcher.Constraint("Vertical", 0),
    Sketcher.Constraint("Horizontal", 1),
    Sketcher.Constraint("Vertical", 2),
    Sketcher.Constraint("Horizontal", 3),
    Sketcher.Constraint("DistanceX", 1, 2, 1, 1, Q("30 in")),
    Sketcher.Constraint("DistanceY", 0, 2, 0, 1, Q("48 in")),
    Sketcher.Constraint("DistanceX", -1, 1, 0, 2, Q("94 in")),
    Sketcher.Constraint("DistanceY", -1, 1, 0, 2, Q("28 in")),
])
pocket15 = body.newObject("PartDesign::Pocket", "Pocket014")
pocket15.Profile = sketch17
pocket15.Type = "ThroughAll"
pocket15.Reversed = True

# Sketch on XZ plane
sketch18 = body.newObject("Sketcher::SketchObject", "Sketch017")
sketch18.AttachmentSupport = (doc.getObject("XZ_Plane"), [""])
sketch18.MapMode = "FlatFace"
sketch18.AttachmentOffset = App.Placement(V(0, 0, -4 * 25.4), App.Rotation())
sketch18.addGeometry([
    Part.LineSegment(V(6883, 2134, 0), V(6883, 102, 0)),
    Part.LineSegment(V(6883, 102, 0), V(5156, 102, 0)),
    Part.LineSegment(V(5156, 102, 0), V(5156, 2134, 0)),
    Part.LineSegment(V(5156, 2134, 0), V(6883, 2134, 0)),
], False)
sketch18.addConstraint([
    Sketcher.Constraint("Coincident", 0, 2, 1, 1),
    Sketcher.Constraint("Coincident", 1, 2, 2, 1),
    Sketcher.Constraint("Coincident", 2, 2, 3, 1),
    Sketcher.Constraint("Coincident", 3, 2, 0, 1),
    Sketcher.Constraint("Vertical", 0),
    Sketcher.Constraint("Horizontal", 1),
    Sketcher.Constraint("Vertical", 2),
    Sketcher.Constraint("Horizontal", 3),
    Sketcher.Constraint("DistanceX", 1, 2, 1, 1, Q("68 in")),
    Sketcher.Constraint("DistanceY", 0, 2, 0, 1, Q("80 in")),
    Sketcher.Constraint("DistanceX", -1, 1, 0, 2, Q("271 in")),
    Sketcher.Constraint("DistanceY", -1, 1, 0, 2, Q("4 in")),
])
pocket16 = body.newObject("PartDesign::Pocket", "Pocket015")
pocket16.Profile = sketch18
pocket16.Type = "ThroughAll"
pocket16.Reversed = True

# Sketch on YZ plane
sketch19 = body.newObject("Sketcher::SketchObject", "Sketch018")
sketch19.AttachmentSupport = (doc.getObject("YZ_Plane"), [""])
sketch19.MapMode = "FlatFace"
sketch19.AttachmentOffset = App.Placement(V(0, 0, 101 * 25.4), App.Rotation())
sketch19.addGeometry([
    Part.LineSegment(V(6604, 2134, 0), V(6604, 102, 0)),
    Part.LineSegment(V(6604, 102, 0), V(5842, 102, 0)),
    Part.LineSegment(V(5842, 102, 0), V(5842, 2134, 0)),
    Part.LineSegment(V(5842, 2134, 0), V(6604, 2134, 0)),
], False)
sketch19.addConstraint([
    Sketcher.Constraint("Coincident", 0, 2, 1, 1),
    Sketcher.Constraint("Coincident", 1, 2, 2, 1),
    Sketcher.Constraint("Coincident", 2, 2, 3, 1),
    Sketcher.Constraint("Coincident", 3, 2, 0, 1),
    Sketcher.Constraint("Vertical", 0),
    Sketcher.Constraint("Horizontal", 1),
    Sketcher.Constraint("Vertical", 2),
    Sketcher.Constraint("Horizontal", 3),
    Sketcher.Constraint("DistanceX", 1, 2, 1, 1, Q("30 in")),
    Sketcher.Constraint("DistanceY", 0, 2, 0, 1, Q("80 in")),
    Sketcher.Constraint("DistanceX", -1, 1, 0, 2, Q("260 in")),
    Sketcher.Constraint("DistanceY", -1, 1, 0, 2, Q("4 in")),
])
pocket17 = body.newObject("PartDesign::Pocket", "Pocket016")
pocket17.Profile = sketch19
pocket17.Length = Q("4 in")
pocket17.Reversed = True

# Sketch on YZ plane
sketch20 = body.newObject("Sketcher::SketchObject", "Sketch019")
sketch20.AttachmentSupport = (doc.getObject("YZ_Plane"), [""])
sketch20.MapMode = "FlatFace"
sketch20.AttachmentOffset = App.Placement(V(0, 0, 136 * 25.4), App.Rotation())
sketch20.addGeometry([
    Part.LineSegment(V(3810, 2134, 0), V(3810, 102, 0)),
    Part.LineSegment(V(3810, 102, 0), V(4572, 102, 0)),
    Part.LineSegment(V(4572, 102, 0), V(4572, 2134, 0)),
    Part.LineSegment(V(4572, 2134, 0), V(3810, 2134, 0)),
], False)
sketch20.addConstraint([
    Sketcher.Constraint("Coincident", 0, 2, 1, 1),
    Sketcher.Constraint("Coincident", 1, 2, 2, 1),
    Sketcher.Constraint("Coincident", 2, 2, 3, 1),
    Sketcher.Constraint("Coincident", 3, 2, 0, 1),
    Sketcher.Constraint("Vertical", 0),
    Sketcher.Constraint("Horizontal", 1),
    Sketcher.Constraint("Vertical", 2),
    Sketcher.Constraint("Horizontal", 3),
    Sketcher.Constraint("DistanceX", 1, 1, 1, 2, Q("30 in")),
    Sketcher.Constraint("DistanceY", 0, 2, 0, 1, Q("80 in")),
    Sketcher.Constraint("DistanceX", -1, 1, 0, 2, Q("150 in")),
    Sketcher.Constraint("DistanceY", -1, 1, 0, 2, Q("4 in")),
])
pocket18 = body.newObject("PartDesign::Pocket", "Pocket017")
pocket18.Profile = sketch20
pocket18.Length = Q("4 in")

doc.recompute()
